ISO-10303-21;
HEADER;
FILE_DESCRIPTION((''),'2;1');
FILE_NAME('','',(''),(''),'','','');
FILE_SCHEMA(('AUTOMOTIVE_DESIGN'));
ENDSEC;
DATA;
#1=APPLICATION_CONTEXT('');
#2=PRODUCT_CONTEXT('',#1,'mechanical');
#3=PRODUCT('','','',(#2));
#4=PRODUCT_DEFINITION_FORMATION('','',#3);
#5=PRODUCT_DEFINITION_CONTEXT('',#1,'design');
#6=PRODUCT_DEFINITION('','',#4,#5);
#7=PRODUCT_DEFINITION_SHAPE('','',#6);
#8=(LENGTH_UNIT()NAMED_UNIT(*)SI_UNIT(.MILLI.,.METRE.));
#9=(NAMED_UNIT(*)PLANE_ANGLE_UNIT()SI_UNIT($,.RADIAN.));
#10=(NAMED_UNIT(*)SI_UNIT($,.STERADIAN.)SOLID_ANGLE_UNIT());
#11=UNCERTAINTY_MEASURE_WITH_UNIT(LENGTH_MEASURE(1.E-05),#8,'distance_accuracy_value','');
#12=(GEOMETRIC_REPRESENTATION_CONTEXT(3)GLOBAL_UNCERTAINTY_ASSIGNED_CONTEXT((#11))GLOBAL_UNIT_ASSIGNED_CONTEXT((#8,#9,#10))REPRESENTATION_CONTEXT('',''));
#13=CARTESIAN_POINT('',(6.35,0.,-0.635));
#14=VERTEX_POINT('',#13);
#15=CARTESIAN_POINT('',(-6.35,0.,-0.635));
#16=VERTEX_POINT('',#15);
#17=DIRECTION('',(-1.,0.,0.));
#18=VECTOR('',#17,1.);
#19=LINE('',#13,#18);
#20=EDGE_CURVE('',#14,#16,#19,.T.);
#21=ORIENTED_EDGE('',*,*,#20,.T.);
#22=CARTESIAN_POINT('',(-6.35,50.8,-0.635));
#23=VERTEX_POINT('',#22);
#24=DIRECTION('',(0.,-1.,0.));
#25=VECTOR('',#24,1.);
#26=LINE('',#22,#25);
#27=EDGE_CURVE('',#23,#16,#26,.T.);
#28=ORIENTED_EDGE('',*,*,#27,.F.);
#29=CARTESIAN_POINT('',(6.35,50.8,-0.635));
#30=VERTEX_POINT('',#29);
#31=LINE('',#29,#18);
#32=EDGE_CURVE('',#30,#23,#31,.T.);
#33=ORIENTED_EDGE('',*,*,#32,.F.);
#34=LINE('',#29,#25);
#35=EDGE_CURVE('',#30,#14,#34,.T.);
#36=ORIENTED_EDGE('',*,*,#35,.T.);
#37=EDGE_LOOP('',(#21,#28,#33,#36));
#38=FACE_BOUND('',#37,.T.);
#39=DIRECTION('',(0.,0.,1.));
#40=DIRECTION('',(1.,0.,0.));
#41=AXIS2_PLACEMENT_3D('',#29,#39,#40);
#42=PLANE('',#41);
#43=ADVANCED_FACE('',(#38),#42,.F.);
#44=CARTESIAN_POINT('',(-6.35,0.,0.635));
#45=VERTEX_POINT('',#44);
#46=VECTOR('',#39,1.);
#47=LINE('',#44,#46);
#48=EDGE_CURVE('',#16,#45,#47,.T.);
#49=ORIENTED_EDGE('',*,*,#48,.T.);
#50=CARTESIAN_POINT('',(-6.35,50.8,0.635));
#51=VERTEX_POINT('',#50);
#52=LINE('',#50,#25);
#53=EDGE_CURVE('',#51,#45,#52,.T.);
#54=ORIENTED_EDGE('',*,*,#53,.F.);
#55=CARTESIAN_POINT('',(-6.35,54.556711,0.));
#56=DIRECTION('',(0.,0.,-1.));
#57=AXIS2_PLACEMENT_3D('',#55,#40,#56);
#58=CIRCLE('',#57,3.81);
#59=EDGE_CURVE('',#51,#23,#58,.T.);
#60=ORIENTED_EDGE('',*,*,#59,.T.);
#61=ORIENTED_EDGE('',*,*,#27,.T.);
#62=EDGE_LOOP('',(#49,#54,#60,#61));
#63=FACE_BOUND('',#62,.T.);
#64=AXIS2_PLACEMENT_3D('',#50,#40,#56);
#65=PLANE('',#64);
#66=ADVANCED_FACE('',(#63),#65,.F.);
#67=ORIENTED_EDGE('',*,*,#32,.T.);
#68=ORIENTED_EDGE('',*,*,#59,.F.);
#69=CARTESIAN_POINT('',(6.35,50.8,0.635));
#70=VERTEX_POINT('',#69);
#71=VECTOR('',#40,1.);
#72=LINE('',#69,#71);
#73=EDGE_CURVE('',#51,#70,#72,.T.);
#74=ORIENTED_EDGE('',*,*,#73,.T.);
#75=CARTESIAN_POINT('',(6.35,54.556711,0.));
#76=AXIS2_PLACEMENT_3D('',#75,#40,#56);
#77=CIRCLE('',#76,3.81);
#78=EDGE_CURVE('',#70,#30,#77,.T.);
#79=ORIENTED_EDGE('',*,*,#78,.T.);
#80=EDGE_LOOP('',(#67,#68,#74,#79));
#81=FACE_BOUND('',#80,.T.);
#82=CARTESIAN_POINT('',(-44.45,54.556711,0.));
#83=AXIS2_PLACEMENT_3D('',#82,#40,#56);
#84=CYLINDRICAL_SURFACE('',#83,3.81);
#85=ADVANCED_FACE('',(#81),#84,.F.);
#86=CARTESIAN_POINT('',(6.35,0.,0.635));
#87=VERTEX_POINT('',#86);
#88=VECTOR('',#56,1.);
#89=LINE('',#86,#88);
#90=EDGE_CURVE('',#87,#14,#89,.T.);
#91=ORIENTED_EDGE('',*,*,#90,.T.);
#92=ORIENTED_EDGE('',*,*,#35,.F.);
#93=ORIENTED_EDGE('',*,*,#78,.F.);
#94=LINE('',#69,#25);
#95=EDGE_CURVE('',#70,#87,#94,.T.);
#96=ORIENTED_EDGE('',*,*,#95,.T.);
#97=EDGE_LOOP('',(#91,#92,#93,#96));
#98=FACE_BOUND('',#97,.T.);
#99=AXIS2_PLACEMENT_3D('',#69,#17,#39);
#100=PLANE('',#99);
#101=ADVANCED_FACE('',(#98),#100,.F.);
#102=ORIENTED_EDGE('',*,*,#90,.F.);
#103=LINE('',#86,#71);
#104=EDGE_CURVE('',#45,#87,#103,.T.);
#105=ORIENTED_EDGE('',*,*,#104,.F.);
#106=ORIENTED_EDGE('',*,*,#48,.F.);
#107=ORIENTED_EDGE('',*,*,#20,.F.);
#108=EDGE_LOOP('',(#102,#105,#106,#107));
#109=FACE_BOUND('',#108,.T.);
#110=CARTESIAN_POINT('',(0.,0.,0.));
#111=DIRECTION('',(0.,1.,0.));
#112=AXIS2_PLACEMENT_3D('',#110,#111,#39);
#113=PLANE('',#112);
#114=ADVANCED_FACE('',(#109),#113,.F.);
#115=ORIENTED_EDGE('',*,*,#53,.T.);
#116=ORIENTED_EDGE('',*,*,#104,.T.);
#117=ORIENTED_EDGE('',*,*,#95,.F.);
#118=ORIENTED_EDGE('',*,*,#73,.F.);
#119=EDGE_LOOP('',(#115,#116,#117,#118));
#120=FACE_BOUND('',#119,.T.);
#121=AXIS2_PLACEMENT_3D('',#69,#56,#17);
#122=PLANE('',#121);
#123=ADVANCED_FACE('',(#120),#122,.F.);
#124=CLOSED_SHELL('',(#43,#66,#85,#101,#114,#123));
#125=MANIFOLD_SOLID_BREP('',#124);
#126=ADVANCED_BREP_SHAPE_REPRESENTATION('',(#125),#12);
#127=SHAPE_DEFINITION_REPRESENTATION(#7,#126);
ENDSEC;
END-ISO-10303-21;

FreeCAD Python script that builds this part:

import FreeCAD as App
import Part
import Sketcher

V = App.Vector
Q = App.Units.Quantity

doc = App.newDocument("Part")
body = doc.addObject("PartDesign::Body", "Body")

sketch1 = body.newObject("Sketcher::SketchObject", "Sketch")
sketch1.AttachmentSupport = (doc.getObject("XZ_Plane"), [""])
sketch1.MapMode = "FlatFace"
sketch1.addGeometry(Part.LineSegment(V(-6.35, -0.635, 0), V(-6.35, 0.635, 0)), False)
sketch1.addGeometry(Part.LineSegment(V(-6.35, 0.635, 0), V(6.35, 0.635, 0)), False)
sketch1.addGeometry(Part.LineSegment(V(6.35, 0.635, 0), V(6.35, -0.635, 0)), False)
sketch1.addGeometry(Part.LineSegment(V(6.35, -0.635, 0), V(-6.35, -0.635, 0)), False)
sketch1.addConstraint(Sketcher.Constraint("Coincident", 0, 2, 1, 1))
sketch1.addConstraint(Sketcher.Constraint("Coincident", 1, 2, 2, 1))
sketch1.addConstraint(Sketcher.Constraint("Coincident", 2, 2, 3, 1))
sketch1.addConstraint(Sketcher.Constraint("Coincident", 3, 2, 0, 1))
sketch1.addConstraint(Sketcher.Constraint("Vertical", 0))
sketch1.addConstraint(Sketcher.Constraint("Horizontal", 1))
sketch1.addConstraint(Sketcher.Constraint("Vertical", 2))
sketch1.addConstraint(Sketcher.Constraint("Horizontal", 3))
sketch1.addConstraint(Sketcher.Constraint("Symmetric", 0, 2, 2, 2, -1, 1))
sketch1.addConstraint(Sketcher.Constraint("DistanceX", 1, 1, 1, 2, Q("0.5 in")))
sketch1.addConstraint(Sketcher.Constraint("DistanceY", 0, 1, 0, 2, Q("0.05 in")))
pad1 = body.newObject("PartDesign::Pad", "Pad")
pad1.Profile = sketch1
pad1.Length = Q("2 in")
pad1.Reversed = True

sketch2 = body.newObject("Sketcher::SketchObject", "Sketch001")
sketch2.AttachmentSupport = (doc.getObject("YZ_Plane"), [""])
sketch2.MapMode = "FlatFace"
sketch2.AttachmentOffset = App.Placement(V(0, 0, 0.25 * 25.4), App.Rotation())
sketch2.addGeometry(Part.Circle(V(54.556711, 0, 0), V(0, 0, 1), 3.81), False)
sketch2.addConstraint(Sketcher.Constraint("PointOnObject", 0, 3, -1))
sketch2.addConstraint(Sketcher.Constraint("Diameter", 0, Q("0.3 in")))
sketch2.addConstraint(Sketcher.Constraint("DistanceX", -1, 1, 0, 3, Q("54.556711 mm")))
pocket1 = body.newObject("PartDesign::Pocket", "Pocket")
pocket1.Profile = sketch2
pocket1.Length = Q("2 in")

doc.recompute()
